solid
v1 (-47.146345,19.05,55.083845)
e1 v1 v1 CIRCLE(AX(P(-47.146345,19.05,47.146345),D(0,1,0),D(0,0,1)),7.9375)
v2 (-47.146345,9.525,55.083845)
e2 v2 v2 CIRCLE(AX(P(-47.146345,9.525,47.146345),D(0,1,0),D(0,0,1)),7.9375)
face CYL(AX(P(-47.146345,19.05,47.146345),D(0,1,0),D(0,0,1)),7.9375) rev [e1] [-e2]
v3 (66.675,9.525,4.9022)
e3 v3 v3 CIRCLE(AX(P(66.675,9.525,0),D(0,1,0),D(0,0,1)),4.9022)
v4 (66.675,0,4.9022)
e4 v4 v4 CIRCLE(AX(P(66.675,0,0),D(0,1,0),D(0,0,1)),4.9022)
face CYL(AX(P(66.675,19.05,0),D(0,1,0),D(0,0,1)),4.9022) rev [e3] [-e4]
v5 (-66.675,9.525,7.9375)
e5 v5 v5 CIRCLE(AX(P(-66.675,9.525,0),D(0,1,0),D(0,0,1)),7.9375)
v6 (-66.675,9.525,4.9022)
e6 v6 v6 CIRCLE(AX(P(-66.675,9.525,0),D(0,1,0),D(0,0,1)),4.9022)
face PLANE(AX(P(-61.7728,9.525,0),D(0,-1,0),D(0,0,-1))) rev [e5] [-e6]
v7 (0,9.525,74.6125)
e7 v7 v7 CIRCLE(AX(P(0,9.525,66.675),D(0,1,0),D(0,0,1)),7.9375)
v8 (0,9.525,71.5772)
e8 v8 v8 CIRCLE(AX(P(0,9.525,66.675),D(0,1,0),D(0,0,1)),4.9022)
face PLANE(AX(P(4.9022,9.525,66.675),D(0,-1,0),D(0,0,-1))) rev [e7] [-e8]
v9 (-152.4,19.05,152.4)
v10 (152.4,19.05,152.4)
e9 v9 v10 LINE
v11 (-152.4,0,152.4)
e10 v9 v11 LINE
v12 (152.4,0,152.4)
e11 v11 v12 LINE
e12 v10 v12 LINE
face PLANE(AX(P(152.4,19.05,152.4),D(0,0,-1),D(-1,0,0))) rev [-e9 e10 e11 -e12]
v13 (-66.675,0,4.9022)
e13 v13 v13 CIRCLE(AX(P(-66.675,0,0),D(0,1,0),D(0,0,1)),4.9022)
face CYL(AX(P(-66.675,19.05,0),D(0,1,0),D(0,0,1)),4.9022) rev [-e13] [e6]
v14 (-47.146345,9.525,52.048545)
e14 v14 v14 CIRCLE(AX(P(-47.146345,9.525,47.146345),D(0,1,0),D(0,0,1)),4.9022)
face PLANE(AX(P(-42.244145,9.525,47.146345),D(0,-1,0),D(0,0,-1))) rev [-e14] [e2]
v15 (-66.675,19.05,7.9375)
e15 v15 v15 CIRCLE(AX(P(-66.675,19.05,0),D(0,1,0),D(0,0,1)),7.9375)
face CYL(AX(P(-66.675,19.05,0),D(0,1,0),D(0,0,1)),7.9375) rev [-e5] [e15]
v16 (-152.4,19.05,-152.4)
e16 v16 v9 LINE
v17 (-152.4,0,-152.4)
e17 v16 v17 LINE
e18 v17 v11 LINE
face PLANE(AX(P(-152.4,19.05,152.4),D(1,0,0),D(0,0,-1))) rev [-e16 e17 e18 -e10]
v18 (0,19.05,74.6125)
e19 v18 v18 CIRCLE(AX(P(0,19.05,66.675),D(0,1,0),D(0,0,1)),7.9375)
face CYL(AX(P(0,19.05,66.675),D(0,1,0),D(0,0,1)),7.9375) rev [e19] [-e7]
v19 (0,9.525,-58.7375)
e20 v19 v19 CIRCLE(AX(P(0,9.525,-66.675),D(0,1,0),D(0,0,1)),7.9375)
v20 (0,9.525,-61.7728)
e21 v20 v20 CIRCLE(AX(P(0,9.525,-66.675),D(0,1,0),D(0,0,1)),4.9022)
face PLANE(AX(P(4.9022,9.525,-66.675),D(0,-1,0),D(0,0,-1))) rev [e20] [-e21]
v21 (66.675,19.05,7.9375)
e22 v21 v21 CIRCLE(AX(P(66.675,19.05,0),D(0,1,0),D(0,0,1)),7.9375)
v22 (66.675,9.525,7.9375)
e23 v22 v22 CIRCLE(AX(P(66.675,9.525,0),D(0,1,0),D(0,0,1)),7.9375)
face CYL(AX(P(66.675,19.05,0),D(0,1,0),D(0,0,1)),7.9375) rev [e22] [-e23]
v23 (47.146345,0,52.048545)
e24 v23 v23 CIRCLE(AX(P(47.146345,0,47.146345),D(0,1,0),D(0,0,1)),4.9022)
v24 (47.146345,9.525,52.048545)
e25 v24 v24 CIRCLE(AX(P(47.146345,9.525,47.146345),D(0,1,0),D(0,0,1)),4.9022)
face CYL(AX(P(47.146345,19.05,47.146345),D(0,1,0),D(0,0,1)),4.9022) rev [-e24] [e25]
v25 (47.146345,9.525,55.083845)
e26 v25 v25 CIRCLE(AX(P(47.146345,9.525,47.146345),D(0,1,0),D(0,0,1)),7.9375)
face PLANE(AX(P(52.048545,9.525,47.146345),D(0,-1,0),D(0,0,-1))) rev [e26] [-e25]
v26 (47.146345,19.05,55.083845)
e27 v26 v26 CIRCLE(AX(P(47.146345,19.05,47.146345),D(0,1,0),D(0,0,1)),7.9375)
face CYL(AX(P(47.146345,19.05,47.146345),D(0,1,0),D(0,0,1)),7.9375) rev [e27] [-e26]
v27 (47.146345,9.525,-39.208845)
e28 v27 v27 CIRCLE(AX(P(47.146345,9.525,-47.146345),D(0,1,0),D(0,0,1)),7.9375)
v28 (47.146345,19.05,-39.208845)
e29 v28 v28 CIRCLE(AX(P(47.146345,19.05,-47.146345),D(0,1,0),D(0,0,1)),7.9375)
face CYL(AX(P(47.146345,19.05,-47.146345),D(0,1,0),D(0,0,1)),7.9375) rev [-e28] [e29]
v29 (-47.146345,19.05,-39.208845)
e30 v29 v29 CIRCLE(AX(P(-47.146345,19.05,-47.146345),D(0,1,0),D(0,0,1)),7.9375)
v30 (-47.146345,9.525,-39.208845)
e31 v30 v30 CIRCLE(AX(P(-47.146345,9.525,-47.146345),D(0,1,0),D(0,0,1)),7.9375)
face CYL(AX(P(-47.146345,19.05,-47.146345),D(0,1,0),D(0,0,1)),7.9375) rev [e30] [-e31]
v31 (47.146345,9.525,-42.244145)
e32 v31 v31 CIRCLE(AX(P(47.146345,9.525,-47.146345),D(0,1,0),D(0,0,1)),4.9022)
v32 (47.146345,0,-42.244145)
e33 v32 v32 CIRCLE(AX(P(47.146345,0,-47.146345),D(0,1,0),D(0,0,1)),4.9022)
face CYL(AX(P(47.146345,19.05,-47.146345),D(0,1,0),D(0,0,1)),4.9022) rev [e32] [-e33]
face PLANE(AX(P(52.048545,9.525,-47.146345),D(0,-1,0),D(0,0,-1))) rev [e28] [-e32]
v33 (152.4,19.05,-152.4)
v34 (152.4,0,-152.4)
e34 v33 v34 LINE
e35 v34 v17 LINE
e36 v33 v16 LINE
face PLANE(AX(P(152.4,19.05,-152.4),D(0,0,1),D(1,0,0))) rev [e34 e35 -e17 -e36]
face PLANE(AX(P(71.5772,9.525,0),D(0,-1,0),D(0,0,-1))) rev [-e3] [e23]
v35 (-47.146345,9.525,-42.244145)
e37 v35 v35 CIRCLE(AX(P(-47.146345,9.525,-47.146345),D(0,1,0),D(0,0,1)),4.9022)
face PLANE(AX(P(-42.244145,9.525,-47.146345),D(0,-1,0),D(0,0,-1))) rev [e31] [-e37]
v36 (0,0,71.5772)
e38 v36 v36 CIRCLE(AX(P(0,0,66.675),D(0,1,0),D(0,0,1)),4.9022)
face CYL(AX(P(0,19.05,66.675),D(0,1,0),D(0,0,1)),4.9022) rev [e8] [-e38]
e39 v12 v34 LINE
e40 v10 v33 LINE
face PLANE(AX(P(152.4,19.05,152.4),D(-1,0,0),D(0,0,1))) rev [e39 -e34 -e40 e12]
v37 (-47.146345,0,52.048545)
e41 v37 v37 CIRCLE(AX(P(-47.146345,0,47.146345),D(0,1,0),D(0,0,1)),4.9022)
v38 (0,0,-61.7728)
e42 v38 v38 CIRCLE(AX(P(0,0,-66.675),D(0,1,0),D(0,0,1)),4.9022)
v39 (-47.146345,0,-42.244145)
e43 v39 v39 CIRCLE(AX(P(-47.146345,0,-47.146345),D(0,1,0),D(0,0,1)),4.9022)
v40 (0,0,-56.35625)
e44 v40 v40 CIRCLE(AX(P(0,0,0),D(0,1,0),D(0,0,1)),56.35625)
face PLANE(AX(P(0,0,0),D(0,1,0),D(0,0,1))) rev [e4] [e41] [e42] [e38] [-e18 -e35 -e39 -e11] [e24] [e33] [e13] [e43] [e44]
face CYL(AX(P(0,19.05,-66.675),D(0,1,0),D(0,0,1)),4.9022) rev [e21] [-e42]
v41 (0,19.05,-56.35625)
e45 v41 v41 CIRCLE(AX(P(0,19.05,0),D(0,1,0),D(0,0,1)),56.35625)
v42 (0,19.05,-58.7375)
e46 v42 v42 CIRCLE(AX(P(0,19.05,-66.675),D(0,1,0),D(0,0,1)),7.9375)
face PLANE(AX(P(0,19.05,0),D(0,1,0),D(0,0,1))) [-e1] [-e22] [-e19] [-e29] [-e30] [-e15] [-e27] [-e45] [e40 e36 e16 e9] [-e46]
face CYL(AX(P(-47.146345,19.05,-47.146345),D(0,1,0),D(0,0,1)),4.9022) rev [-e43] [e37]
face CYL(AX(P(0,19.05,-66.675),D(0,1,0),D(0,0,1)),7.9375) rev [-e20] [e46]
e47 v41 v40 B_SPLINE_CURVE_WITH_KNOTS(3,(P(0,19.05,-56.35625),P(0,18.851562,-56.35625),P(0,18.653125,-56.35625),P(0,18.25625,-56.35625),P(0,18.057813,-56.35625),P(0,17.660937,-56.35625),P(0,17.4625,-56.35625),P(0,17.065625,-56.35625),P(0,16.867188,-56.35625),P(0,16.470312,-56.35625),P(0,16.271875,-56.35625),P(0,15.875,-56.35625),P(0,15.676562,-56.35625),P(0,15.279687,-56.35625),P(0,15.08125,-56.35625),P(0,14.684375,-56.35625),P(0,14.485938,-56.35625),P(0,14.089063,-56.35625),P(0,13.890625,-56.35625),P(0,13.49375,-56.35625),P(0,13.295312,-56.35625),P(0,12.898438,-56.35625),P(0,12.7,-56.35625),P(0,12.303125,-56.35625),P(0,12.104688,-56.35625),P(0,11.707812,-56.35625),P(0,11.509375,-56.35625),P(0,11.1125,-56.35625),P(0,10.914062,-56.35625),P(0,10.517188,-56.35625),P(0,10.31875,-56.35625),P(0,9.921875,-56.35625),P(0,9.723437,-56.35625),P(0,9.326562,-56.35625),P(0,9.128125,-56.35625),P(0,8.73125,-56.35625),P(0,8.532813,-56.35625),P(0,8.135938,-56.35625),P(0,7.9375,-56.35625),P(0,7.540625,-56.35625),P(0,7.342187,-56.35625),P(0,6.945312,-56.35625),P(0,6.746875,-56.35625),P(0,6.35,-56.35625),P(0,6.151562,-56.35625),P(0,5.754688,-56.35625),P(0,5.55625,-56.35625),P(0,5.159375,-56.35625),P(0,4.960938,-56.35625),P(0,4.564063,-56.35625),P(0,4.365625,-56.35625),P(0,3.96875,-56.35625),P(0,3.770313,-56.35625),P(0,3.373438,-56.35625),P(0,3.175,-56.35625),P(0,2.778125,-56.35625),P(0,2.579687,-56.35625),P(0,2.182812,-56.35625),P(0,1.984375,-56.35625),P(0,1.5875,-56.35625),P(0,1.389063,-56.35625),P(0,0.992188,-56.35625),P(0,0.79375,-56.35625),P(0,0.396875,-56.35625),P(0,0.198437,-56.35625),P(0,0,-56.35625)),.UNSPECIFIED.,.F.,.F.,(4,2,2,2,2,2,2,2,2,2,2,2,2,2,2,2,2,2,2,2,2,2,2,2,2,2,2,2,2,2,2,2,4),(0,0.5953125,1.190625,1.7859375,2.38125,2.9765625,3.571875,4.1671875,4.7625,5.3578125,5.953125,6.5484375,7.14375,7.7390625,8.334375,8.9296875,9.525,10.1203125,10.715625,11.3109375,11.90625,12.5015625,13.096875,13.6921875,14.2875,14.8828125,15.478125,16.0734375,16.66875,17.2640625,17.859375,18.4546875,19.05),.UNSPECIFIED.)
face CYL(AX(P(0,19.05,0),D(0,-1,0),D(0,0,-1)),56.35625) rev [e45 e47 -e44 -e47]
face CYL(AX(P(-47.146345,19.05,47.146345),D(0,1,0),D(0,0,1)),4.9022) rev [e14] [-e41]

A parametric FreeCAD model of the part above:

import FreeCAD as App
import Part
import Sketcher
Q = App.Units.Quantity

doc = App.newDocument("Part")
body = doc.addObject("PartDesign::Body", "Body")

sketch1 = body.newObject("Sketcher::SketchObject", "Sketch")
sketch1.AttachmentSupport = (doc.getObject("XZ_Plane"), [""])
sketch1.MapMode = "FlatFace"
sketch1.addGeometry(Part.LineSegment(App.Vector(-152.4, -152.4, 0), App.Vector(-152.4, 152.4, 0)), False)
sketch1.addGeometry(Part.LineSegment(App.Vector(-152.4, 152.4, 0), App.Vector(152.4, 152.4, 0)), False)
sketch1.addGeometry(Part.LineSegment(App.Vector(152.4, 152.4, 0), App.Vector(152.4, -152.4, 0)), False)
sketch1.addGeometry(Part.LineSegment(App.Vector(152.4, -152.4, 0), App.Vector(-152.4, -152.4, 0)), False)
sketch1.addGeometry(Part.Circle(App.Vector(0, 0, 0), App.Vector(0, 0, 1), 56.35625), False)
sketch1.addConstraint(Sketcher.Constraint("Coincident", 0, 2, 1, 1))
sketch1.addConstraint(Sketcher.Constraint("Coincident", 1, 2, 2, 1))
sketch1.addConstraint(Sketcher.Constraint("Coincident", 2, 2, 3, 1))
sketch1.addConstraint(Sketcher.Constraint("Coincident", 3, 2, 0, 1))
sketch1.addConstraint(Sketcher.Constraint("Vertical", 0))
sketch1.addConstraint(Sketcher.Constraint("Horizontal", 1))
sketch1.addConstraint(Sketcher.Constraint("Vertical", 2))
sketch1.addConstraint(Sketcher.Constraint("Horizontal", 3))
sketch1.addConstraint(Sketcher.Constraint("Coincident", 4, 3, -1, 1))
sketch1.addConstraint(Sketcher.Constraint("Symmetric", 0, 2, 2, 2, -1, 1))
sketch1.addConstraint(Sketcher.Constraint("Equal", 3, 0))
sketch1.addConstraint(Sketcher.Constraint("DistanceX", 1, 1, 1, 2, Q("12 in")))
sketch1.addConstraint(Sketcher.Constraint("Diameter", 4, Q("4.4375 in")))
pad1 = body.newObject("PartDesign::Pad", "Pad")
pad1.Profile = sketch1
pad1.Length = Q("0.75 in")
pad1.Reversed = True

sketch2 = body.newObject("Sketcher::SketchObject", "Sketch001")
sketch2.AttachmentSupport = (doc.getObject("XZ_Plane"), [""])
sketch2.MapMode = "FlatFace"
sketch2.AttachmentOffset = App.Placement(App.Vector(0, 0, -0.75 * 25.4), App.Rotation())
sketch2.addGeometry(Part.Circle(App.Vector(47.146345, 47.146345, 0), App.Vector(0, 0, 1), 4.9022), False)
sketch2.addGeometry(Part.Circle(App.Vector(66.675, 0, 0), App.Vector(0, 0, 1), 4.9022), False)
sketch2.addGeometry(Part.Circle(App.Vector(47.146345, -47.146345, 0), App.Vector(0, 0, 1), 4.9022), False)
sketch2.addGeometry(Part.Circle(App.Vector(0, -66.675, 0), App.Vector(0, 0, 1), 4.9022), False)
sketch2.addGeometry(Part.Circle(App.Vector(-47.146345, -47.146345, 0), App.Vector(0, 0, 1), 4.9022), False)
sketch2.addGeometry(Part.Circle(App.Vector(-66.675, 0, 0), App.Vector(0, 0, 1), 4.9022), False)
sketch2.addGeometry(Part.Circle(App.Vector(-47.146345, 47.146345, 0), App.Vector(0, 0, 1), 4.9022), False)
sketch2.addGeometry(Part.Circle(App.Vector(0, 66.675, 0), App.Vector(0, 0, 1), 4.9022), False)
sketch2.addConstraint(Sketcher.Constraint("Equal", 0, 1))
sketch2.addConstraint(Sketcher.Constraint("Equal", 1, 2))
sketch2.addConstraint(Sketcher.Constraint("Equal", 2, 3))
sketch2.addConstraint(Sketcher.Constraint("Equal", 3, 4))
sketch2.addConstraint(Sketcher.Constraint("Equal", 4, 5))
sketch2.addConstraint(Sketcher.Constraint("Equal", 5, 6))
sketch2.addConstraint(Sketcher.Constraint("Equal", 6, 7))
sketch2.addConstraint(Sketcher.Constraint("Symmetric", 0, 3, 4, 3, -1, 1))
sketch2.addConstraint(Sketcher.Constraint("Symmetric", 1, 3, 5, 3, -1, 1))
sketch2.addConstraint(Sketcher.Constraint("Symmetric", 2, 3, 6, 3, -1, 1))
sketch2.addConstraint(Sketcher.Constraint("Symmetric", 3, 3, 7, 3, -1, 1))
sketch2.addConstraint(Sketcher.Constraint("Symmetric", 2, 3, 4, 3, -2))
sketch2.addConstraint(Sketcher.Constraint("PointOnObject", 1, 3, -1))
sketch2.addConstraint(Sketcher.Constraint("PointOnObject", 3, 3, -2))
sketch2.addConstraint(Sketcher.Constraint("Diameter", 0, Q("0.386 in")))
sketch2.addConstraint(Sketcher.Constraint("DistanceX", 5, 3, 1, 3, Q("5.25 in")))
sketch2.addConstraint(Sketcher.Constraint("DistanceY", 3, 3, -1, 1, Q("2.625 in")))
sketch2.addConstraint(Sketcher.Constraint("DistanceY", 2, 3, 0, 3, 94.292689))
sketch2.addConstraint(Sketcher.Constraint("DistanceX", 4, 3, 2, 3, 94.292689))
doc.recompute()
hole = body.newObject("PartDesign::Hole", "Hole")
hole.Profile = sketch2
hole.ThreadType = "None"
hole.Diameter = Q("0.386 in")
hole.DepthType = "ThroughAll"
hole.HoleCutType = "Counterbore"
hole.HoleCutDiameter = Q("0.625 in")
hole.HoleCutDepth = Q("0.375 in")
hole.Reversed = True

doc.recompute()
